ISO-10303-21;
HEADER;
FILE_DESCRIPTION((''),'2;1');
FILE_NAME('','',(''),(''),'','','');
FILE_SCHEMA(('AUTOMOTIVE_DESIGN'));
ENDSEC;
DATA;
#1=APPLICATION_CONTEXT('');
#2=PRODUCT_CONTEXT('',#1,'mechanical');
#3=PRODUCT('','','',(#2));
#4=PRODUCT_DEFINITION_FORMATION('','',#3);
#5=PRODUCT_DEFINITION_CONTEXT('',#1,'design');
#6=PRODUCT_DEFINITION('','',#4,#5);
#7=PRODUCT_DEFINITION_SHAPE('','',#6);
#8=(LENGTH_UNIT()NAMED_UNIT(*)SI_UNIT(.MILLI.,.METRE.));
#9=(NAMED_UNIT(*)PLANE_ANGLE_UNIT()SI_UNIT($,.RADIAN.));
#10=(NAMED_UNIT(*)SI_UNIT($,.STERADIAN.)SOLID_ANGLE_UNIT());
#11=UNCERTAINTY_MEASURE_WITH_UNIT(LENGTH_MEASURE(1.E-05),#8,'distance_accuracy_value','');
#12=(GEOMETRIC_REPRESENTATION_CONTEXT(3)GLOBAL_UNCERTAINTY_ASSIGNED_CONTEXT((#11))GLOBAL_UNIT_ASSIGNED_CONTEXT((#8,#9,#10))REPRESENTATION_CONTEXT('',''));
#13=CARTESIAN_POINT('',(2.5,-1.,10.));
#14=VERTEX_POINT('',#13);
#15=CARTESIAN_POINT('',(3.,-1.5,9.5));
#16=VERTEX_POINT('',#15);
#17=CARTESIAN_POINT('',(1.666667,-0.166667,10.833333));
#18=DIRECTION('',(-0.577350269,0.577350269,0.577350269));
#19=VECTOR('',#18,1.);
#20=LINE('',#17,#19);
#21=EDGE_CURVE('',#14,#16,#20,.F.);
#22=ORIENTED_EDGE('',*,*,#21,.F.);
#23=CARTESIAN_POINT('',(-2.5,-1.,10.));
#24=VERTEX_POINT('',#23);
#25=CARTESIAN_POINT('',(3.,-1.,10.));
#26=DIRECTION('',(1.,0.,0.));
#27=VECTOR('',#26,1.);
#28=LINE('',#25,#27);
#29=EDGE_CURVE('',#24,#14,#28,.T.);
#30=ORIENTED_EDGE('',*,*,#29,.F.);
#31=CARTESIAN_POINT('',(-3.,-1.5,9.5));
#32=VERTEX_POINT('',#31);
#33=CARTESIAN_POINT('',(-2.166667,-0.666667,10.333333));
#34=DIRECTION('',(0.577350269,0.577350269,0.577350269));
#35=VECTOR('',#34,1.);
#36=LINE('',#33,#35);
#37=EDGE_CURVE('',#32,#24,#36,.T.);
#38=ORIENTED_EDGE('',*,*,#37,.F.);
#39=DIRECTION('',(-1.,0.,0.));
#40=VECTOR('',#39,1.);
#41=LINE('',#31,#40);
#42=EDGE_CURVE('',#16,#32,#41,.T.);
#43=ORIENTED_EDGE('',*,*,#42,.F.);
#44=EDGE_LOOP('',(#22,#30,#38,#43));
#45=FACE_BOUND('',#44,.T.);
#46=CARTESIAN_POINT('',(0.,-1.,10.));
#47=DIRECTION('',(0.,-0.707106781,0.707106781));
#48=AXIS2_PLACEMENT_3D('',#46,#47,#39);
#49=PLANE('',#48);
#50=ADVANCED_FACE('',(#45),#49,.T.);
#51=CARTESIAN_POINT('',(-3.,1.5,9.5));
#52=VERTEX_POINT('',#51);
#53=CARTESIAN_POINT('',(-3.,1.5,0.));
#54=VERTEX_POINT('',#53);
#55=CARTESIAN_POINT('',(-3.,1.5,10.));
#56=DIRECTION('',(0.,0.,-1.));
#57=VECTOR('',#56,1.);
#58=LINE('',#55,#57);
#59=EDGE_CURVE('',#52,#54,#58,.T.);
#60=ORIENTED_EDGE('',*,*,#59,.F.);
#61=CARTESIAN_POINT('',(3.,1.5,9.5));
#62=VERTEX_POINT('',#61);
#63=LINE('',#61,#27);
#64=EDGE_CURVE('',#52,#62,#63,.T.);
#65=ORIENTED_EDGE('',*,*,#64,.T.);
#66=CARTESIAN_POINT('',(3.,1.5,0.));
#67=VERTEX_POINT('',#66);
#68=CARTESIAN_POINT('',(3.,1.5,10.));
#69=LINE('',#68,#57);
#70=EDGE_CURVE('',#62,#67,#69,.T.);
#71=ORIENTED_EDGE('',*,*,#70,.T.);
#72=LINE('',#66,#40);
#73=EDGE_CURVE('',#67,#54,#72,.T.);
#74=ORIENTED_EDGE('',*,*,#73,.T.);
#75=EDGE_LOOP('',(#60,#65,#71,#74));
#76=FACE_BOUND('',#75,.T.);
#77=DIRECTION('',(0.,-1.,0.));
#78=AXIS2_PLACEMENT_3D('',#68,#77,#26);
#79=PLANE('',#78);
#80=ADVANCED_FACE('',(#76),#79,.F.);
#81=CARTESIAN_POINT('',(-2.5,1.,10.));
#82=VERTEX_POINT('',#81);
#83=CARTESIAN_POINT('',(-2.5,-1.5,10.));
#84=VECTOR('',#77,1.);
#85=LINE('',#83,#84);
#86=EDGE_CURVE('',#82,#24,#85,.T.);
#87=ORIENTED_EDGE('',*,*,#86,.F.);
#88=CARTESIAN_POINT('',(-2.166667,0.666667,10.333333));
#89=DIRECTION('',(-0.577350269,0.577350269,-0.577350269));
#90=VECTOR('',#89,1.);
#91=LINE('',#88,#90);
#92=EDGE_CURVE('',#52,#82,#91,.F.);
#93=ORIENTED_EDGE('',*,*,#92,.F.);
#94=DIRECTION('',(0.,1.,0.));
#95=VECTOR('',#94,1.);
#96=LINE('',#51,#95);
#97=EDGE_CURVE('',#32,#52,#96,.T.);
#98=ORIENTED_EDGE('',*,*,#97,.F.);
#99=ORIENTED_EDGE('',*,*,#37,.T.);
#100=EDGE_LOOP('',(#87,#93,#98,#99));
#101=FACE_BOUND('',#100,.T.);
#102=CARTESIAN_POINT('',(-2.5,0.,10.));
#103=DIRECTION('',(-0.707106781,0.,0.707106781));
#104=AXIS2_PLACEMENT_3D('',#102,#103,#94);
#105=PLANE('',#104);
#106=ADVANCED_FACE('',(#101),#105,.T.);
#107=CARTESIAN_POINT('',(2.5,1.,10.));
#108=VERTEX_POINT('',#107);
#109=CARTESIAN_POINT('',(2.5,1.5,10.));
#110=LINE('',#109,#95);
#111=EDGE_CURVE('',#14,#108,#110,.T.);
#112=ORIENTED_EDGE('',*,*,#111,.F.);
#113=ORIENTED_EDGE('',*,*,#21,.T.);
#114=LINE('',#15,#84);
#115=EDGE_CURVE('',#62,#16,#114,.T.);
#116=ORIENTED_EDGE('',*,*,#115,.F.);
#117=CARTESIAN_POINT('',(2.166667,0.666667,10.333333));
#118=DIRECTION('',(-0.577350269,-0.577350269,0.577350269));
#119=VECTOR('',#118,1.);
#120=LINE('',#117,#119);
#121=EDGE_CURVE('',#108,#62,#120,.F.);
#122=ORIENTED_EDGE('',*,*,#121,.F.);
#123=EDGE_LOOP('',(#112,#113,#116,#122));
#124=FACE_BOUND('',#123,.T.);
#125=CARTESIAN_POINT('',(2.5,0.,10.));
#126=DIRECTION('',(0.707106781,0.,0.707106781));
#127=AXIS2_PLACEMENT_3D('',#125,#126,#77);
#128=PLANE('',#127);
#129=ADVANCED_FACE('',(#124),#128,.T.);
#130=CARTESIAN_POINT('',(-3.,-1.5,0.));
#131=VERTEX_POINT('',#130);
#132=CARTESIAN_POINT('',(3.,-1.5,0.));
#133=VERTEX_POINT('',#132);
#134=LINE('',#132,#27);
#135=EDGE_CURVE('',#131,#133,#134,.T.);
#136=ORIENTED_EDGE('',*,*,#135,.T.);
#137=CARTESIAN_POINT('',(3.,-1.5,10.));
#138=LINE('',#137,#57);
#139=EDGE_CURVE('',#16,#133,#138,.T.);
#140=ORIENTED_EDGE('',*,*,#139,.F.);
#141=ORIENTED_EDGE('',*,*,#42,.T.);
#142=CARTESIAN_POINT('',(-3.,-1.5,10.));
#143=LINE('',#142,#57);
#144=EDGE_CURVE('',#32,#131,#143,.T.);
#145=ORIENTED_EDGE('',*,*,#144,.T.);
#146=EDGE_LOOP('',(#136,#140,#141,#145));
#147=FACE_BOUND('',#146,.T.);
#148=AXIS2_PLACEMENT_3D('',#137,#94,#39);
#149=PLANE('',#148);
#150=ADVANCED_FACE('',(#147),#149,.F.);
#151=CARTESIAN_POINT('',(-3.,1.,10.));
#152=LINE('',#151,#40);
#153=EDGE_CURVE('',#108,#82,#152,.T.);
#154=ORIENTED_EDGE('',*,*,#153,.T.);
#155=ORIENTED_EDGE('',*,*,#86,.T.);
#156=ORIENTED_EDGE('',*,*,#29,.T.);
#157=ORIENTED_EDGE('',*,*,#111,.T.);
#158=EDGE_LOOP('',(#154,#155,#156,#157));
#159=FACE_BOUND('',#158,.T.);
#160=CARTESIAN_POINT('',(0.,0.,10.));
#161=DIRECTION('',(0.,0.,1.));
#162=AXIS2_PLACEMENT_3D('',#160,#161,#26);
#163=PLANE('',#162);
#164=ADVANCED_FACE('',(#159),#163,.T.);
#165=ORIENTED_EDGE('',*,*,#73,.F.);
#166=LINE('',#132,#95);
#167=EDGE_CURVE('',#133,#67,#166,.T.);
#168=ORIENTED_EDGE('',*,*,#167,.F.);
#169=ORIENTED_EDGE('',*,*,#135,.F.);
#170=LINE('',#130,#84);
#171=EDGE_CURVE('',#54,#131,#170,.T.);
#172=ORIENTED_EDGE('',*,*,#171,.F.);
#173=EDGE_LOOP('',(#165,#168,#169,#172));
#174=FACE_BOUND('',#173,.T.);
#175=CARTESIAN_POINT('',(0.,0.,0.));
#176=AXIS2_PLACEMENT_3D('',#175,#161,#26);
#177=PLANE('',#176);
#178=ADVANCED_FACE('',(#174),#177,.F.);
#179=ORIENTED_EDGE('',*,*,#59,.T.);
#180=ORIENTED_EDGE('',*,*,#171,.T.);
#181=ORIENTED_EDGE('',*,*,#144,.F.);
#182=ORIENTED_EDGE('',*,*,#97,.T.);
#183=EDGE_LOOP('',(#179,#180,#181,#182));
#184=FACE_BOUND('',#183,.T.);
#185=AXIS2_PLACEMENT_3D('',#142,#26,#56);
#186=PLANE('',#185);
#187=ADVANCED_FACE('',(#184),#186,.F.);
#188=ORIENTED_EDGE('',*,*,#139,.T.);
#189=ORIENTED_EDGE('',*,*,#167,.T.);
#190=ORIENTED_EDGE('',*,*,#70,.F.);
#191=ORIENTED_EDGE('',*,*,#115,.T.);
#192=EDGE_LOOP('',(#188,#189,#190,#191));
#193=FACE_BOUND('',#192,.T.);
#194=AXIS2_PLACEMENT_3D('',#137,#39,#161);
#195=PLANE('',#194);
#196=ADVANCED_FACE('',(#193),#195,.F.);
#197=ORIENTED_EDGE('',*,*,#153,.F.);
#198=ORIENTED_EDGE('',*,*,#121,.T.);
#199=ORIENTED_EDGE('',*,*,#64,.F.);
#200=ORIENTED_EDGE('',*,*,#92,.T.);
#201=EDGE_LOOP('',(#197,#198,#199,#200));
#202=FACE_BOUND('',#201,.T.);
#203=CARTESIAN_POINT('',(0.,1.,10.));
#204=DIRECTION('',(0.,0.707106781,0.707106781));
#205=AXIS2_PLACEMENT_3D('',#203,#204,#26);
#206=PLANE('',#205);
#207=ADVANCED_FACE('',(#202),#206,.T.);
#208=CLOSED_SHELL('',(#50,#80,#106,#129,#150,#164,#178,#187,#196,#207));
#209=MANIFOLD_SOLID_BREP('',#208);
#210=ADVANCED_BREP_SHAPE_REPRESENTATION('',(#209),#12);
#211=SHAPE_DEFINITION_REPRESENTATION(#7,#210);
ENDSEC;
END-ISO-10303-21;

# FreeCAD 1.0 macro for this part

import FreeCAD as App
import Part
import Sketcher

V = App.Vector


def edges_at(feature, points):
    """Names of the edges that pass closest to the given points."""
    edges = feature.Shape.Edges
    near = lambda p: min(range(len(edges)), key=lambda i: edges[i].distToShape(Part.Vertex(*p))[0])
    return sorted({f"Edge{near(p) + 1}" for p in points})

doc = App.newDocument("Part")
body = doc.addObject("PartDesign::Body", "Body")

sketch1 = body.newObject("Sketcher::SketchObject", "Sketch")
sketch1.AttachmentSupport = (doc.getObject("XY_Plane"), [""])
sketch1.MapMode = "FlatFace"
sketch1.addGeometry(Part.LineSegment(V(-3, 1.5, 0), V(-3, -1.5, 0)), False)
sketch1.addGeometry(Part.LineSegment(V(-3, -1.5, 0), V(3, -1.5, 0)), False)
sketch1.addGeometry(Part.LineSegment(V(3, -1.5, 0), V(3, 1.5, 0)), False)
sketch1.addGeometry(Part.LineSegment(V(3, 1.5, 0), V(-3, 1.5, 0)), False)
sketch1.addConstraint(Sketcher.Constraint("Coincident", 0, 2, 1, 1))
sketch1.addConstraint(Sketcher.Constraint("Coincident", 1, 2, 2, 1))
sketch1.addConstraint(Sketcher.Constraint("Coincident", 2, 2, 3, 1))
sketch1.addConstraint(Sketcher.Constraint("Coincident", 3, 2, 0, 1))
sketch1.addConstraint(Sketcher.Constraint("Vertical", 0))
sketch1.addConstraint(Sketcher.Constraint("Horizontal", 1))
sketch1.addConstraint(Sketcher.Constraint("Vertical", 2))
sketch1.addConstraint(Sketcher.Constraint("Horizontal", 3))
sketch1.addConstraint(Sketcher.Constraint("Symmetric", 0, 2, 2, 2, -1, 1))
sketch1.addConstraint(Sketcher.Constraint("DistanceX", 1, 1, 1, 2, 6.0))
sketch1.addConstraint(Sketcher.Constraint("DistanceY", 0, 2, 0, 1, 3.0))
pad1 = body.newObject("PartDesign::Pad", "Pad")
pad1.Profile = sketch1
pad1.Length = 10
doc.recompute()

chamfer = body.newObject("PartDesign::Chamfer", "Chamfer")
chamfer.Base = (pad1, edges_at(pad1, [
    (3, 0, 10),
    (0, 1.5, 10),
    (-3, 0, 10),
    (0, -1.5, 10),
]))
chamfer.Size = 0.5

doc.recompute()
